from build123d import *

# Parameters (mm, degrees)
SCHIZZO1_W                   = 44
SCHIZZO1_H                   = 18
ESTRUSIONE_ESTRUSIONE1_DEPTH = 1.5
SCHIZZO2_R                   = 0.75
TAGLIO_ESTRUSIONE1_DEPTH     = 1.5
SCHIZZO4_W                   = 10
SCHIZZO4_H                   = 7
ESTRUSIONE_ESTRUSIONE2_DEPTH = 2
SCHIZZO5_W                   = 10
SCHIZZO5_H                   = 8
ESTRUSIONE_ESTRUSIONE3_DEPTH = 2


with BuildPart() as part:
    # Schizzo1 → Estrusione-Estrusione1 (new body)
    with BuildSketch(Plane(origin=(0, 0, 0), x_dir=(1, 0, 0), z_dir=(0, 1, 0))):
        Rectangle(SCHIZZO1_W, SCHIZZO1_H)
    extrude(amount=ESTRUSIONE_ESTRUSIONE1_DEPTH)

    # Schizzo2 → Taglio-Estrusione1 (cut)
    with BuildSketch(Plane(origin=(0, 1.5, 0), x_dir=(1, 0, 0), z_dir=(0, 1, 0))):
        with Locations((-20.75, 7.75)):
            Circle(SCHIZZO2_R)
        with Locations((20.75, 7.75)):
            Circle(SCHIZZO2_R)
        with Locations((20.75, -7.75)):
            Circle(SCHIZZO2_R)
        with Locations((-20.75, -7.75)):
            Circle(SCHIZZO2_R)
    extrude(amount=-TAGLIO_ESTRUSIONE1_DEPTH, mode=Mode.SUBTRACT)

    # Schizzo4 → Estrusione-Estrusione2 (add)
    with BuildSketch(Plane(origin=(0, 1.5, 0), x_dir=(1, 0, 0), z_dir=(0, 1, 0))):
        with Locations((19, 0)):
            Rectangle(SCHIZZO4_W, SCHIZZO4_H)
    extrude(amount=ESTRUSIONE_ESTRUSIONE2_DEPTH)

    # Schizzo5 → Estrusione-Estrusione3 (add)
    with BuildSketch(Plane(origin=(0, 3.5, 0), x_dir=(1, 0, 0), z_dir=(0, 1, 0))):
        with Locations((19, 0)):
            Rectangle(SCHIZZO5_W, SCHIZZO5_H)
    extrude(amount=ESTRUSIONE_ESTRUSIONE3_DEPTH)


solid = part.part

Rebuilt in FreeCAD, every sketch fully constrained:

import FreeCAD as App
import Part
import Sketcher
Q = App.Units.Quantity


def add_polygon(sketch, points):
    """Adds a closed chain of lines whose ends are joined by coincident constraints."""
    first, n = sketch.GeometryCount, len(points)
    for a, b in zip(points, points[1:] + points[:1]):
        sketch.addGeometry(Part.LineSegment(App.Vector(*a, 0), App.Vector(*b, 0)), False)
    for i in range(n):
        sketch.addConstraint(Sketcher.Constraint("Coincident", first + i, 2, first + (i + 1) % n, 1))

doc = App.newDocument("Part")
body = doc.addObject("PartDesign::Body", "Body")

# Sketch on XZ plane
sketch1 = body.newObject("Sketcher::SketchObject", "Sketch")
sketch1.AttachmentSupport = (doc.getObject("XZ_Plane"), [""])
sketch1.MapMode = "FlatFace"
add_polygon(sketch1, [(-22, -9), (-22, 9), (22, 9), (22, -9)])  # lines 0-3
sketch1.addConstraint([
    Sketcher.Constraint("Vertical", 0),
    Sketcher.Constraint("Horizontal", 1),
    Sketcher.Constraint("Vertical", 2),
    Sketcher.Constraint("Horizontal", 3),
    Sketcher.Constraint("Symmetric", 0, 2, 2, 2, -1, 1),
    Sketcher.Constraint("DistanceX", 1, 1, 1, 2, Q("44 mm")),
    Sketcher.Constraint("DistanceY", 0, 1, 0, 2, Q("18 mm")),
])
pad1 = body.newObject("PartDesign::Pad", "Pad")
pad1.Profile = sketch1
pad1.Length = 1.5
pad1.Reversed = True

# Sketch on XZ plane
sketch2 = body.newObject("Sketcher::SketchObject", "Sketch001")
sketch2.AttachmentSupport = (doc.getObject("XZ_Plane"), [""])
sketch2.MapMode = "FlatFace"
sketch2.AttachmentOffset = App.Placement(App.Vector(0, 0, -1.5), App.Rotation())
sketch2.addGeometry([
    Part.Circle(App.Vector(-20.8, -7.8, 0), App.Vector(0, 0, 1), 0.8),
    Part.Circle(App.Vector(20.8, -7.8, 0), App.Vector(0, 0, 1), 0.8),
    Part.Circle(App.Vector(20.8, 7.8, 0), App.Vector(0, 0, 1), 0.8),
    Part.Circle(App.Vector(-20.8, 7.8, 0), App.Vector(0, 0, 1), 0.8),
], False)
sketch2.addConstraint([
    Sketcher.Constraint("Equal", 0, 1),
    Sketcher.Constraint("Equal", 1, 2),
    Sketcher.Constraint("Equal", 2, 3),
    Sketcher.Constraint("Symmetric", 0, 3, 2, 3, -1, 1),
    Sketcher.Constraint("Symmetric", 1, 3, 3, 3, -1, 1),
    Sketcher.Constraint("Symmetric", 0, 3, 1, 3, -2),
    Sketcher.Constraint("Diameter", 0, Q("1.5 mm")),
    Sketcher.Constraint("DistanceX", 0, 3, 1, 3, Q("41.5 mm")),
    Sketcher.Constraint("DistanceY", 1, 3, 2, 3, Q("15.5 mm")),
])
pocket1 = body.newObject("PartDesign::Pocket", "Pocket")
pocket1.Profile = sketch2
pocket1.Length = 1.5
pocket1.Reversed = True

# Sketch on XZ plane
sketch3 = body.newObject("Sketcher::SketchObject", "Sketch002")
sketch3.AttachmentSupport = (doc.getObject("XZ_Plane"), [""])
sketch3.MapMode = "FlatFace"
sketch3.AttachmentOffset = App.Placement(App.Vector(0, 0, -1.5), App.Rotation())
add_polygon(sketch3, [(14, -4), (14, 4), (24, 4), (24, -4)])  # lines 0-3
sketch3.addConstraint([
    Sketcher.Constraint("Vertical", 0),
    Sketcher.Constraint("Horizontal", 1),
    Sketcher.Constraint("Vertical", 2),
    Sketcher.Constraint("Horizontal", 3),
    Sketcher.Constraint("DistanceX", 1, 1, 1, 2, Q("10 mm")),
    Sketcher.Constraint("DistanceY", 0, 1, 0, 2, Q("7 mm")),
    Sketcher.Constraint("DistanceX", -1, 1, 0, 2, Q("14 mm")),
    Sketcher.Constraint("DistanceY", -1, 1, 0, 2, Q("3.5 mm")),
])
pad2 = body.newObject("PartDesign::Pad", "Pad001")
pad2.Profile = sketch3
pad2.Length = 2
pad2.Reversed = True

# Sketch on XZ plane
sketch4 = body.newObject("Sketcher::SketchObject", "Sketch003")
sketch4.AttachmentSupport = (doc.getObject("XZ_Plane"), [""])
sketch4.MapMode = "FlatFace"
sketch4.AttachmentOffset = App.Placement(App.Vector(0, 0, -3.5), App.Rotation())
add_polygon(sketch4, [(14, -4), (14, 4), (24, 4), (24, -4)])  # lines 0-3
sketch4.addConstraint([
    Sketcher.Constraint("Vertical", 0),
    Sketcher.Constraint("Horizontal", 1),
    Sketcher.Constraint("Vertical", 2),
    Sketcher.Constraint("Horizontal", 3),
    Sketcher.Constraint("DistanceX", 1, 1, 1, 2, Q("10 mm")),
    Sketcher.Constraint("DistanceY", 0, 1, 0, 2, Q("8 mm")),
    Sketcher.Constraint("DistanceX", -1, 1, 0, 2, Q("14 mm")),
    Sketcher.Constraint("DistanceY", -1, 1, 0, 2, Q("4 mm")),
])
pad3 = body.newObject("PartDesign::Pad", "Pad002")
pad3.Profile = sketch4
pad3.Length = 2
pad3.Reversed = True

doc.recompute()
